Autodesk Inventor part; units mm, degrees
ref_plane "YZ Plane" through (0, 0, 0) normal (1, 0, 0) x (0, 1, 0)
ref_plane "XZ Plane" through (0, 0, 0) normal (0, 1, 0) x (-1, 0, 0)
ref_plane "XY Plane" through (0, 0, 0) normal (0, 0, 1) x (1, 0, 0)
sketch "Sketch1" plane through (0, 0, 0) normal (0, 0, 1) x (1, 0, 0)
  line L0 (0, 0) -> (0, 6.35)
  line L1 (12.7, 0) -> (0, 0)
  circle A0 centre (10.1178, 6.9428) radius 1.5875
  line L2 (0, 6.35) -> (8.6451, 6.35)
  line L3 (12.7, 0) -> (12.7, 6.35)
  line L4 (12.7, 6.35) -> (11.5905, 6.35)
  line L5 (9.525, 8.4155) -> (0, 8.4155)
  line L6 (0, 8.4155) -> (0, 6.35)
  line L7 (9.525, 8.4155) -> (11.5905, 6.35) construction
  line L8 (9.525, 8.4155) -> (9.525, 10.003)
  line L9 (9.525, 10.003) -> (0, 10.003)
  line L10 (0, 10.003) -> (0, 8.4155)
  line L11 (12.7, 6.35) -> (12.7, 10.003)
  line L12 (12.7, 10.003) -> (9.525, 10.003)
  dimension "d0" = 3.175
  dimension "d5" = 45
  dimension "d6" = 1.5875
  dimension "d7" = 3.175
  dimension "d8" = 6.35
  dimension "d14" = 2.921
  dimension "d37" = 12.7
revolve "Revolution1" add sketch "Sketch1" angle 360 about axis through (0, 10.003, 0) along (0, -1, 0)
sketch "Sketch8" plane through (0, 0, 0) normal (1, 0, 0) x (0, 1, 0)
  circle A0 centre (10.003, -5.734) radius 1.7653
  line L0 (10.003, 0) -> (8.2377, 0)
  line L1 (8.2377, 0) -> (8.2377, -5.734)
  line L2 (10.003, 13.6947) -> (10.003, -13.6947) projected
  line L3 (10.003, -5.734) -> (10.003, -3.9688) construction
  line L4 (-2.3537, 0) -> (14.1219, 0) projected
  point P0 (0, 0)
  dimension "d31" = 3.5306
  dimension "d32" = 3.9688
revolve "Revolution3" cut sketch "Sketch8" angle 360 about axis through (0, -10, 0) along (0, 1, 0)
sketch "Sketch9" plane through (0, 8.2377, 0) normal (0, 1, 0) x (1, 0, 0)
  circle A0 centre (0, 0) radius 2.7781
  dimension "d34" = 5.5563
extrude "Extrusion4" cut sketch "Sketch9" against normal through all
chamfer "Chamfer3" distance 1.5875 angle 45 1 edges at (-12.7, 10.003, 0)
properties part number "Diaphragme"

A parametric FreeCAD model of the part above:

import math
import FreeCAD as App
import Part
import Sketcher
Q = App.Units.Quantity


def edges_at(feature, points):
    """Names of the edges that pass closest to the given points."""
    edges = feature.Shape.Edges
    near = lambda p: min(range(len(edges)), key=lambda i: edges[i].distToShape(Part.Vertex(*p))[0])
    return sorted({f"Edge{near(p) + 1}" for p in points})


def add_polygon(sketch, points):
    """Adds a closed chain of lines whose ends are joined by coincident constraints."""
    first, n = sketch.GeometryCount, len(points)
    for a, b in zip(points, points[1:] + points[:1]):
        sketch.addGeometry(Part.LineSegment(App.Vector(*a, 0), App.Vector(*b, 0)), False)
    for i in range(n):
        sketch.addConstraint(Sketcher.Constraint("Coincident", first + i, 2, first + (i + 1) % n, 1))

doc = App.newDocument("Part")
body = doc.addObject("PartDesign::Body", "Body")

sketch1 = body.newObject("Sketcher::SketchObject", "Sketch")
sketch1.AttachmentSupport = (doc.getObject("XY_Plane"), [""])
sketch1.MapMode = "FlatFace"
add_polygon(sketch1, [(0, 0), (13, 0), (13, 10), (0, 10)])
sketch1.addConstraint([
    Sketcher.Constraint("Horizontal", 0),
    Sketcher.Constraint("Vertical", 1),
    Sketcher.Constraint("Horizontal", 2),
    Sketcher.Constraint("Vertical", 3),
    Sketcher.Constraint("Coincident", 3, 2, -1, 1),
    Sketcher.Constraint("DistanceX", 0, 1, 0, 2, Q("0.5 in")),
    Sketcher.Constraint("DistanceY", 1, 1, 1, 2, 10.003),
])
revolution = body.newObject("PartDesign::Revolution", "Revolution")
revolution.Profile = sketch1
revolution.ReferenceAxis = (sketch1, ["V_Axis"])
revolution.Angle = 360

sketch2 = body.newObject("Sketcher::SketchObject", "Sketch001")
sketch2.AttachmentSupport = (doc.getObject("YZ_Plane"), [""])
sketch2.MapMode = "FlatFace"
sketch2.addGeometry([
    Part.LineSegment(App.Vector(10, -4, 0), App.Vector(10, 0, 0)),
    Part.LineSegment(App.Vector(10, 0, 0), App.Vector(8.2, 0, 0)),
    Part.LineSegment(App.Vector(8.2, 0, 0), App.Vector(8.2, -5.7, 0)),
    Part.ArcOfCircle(Part.Circle(App.Vector(10, -5.7, 0), App.Vector(0, 0, 1), 1.8), math.radians(180), math.radians(450)),
], False)
sketch2.addConstraint([
    Sketcher.Constraint("Coincident", 0, 2, 1, 1),
    Sketcher.Constraint("Coincident", 1, 2, 2, 1),
    Sketcher.Constraint("Tangent", 2, 2, 3, 1),
    Sketcher.Constraint("Coincident", 3, 2, 0, 1),
    Sketcher.Constraint("Vertical", 0),
    Sketcher.Constraint("Horizontal", 1),
    Sketcher.Constraint("Vertical", 2),
    Sketcher.Constraint("PointOnObject", 0, 2, -1),
    Sketcher.Constraint("Vertical", 3, 3, 0, 2),
    Sketcher.Constraint("Radius", 3, Q("0.0695 in")),
    Sketcher.Constraint("DistanceY", 0, 1, 0, 2, Q("0.156248 in")),
    Sketcher.Constraint("DistanceX", -1, 1, 3, 3, 10.003),
])
groove = body.newObject("PartDesign::Groove", "Groove")
groove.Profile = sketch2
groove.ReferenceAxis = (sketch2, ["H_Axis"])
groove.Angle = 360

sketch3 = body.newObject("Sketcher::SketchObject", "Sketch002")
sketch3.AttachmentSupport = (doc.getObject("XZ_Plane"), [""])
sketch3.MapMode = "FlatFace"
sketch3.AttachmentOffset = App.Placement(App.Vector(0, 0, -8.2377), App.Rotation())
sketch3.addGeometry(Part.Circle(App.Vector(0, 0, 0), App.Vector(0, 0, 1), 2.8), False)
sketch3.addConstraint([
    Sketcher.Constraint("Coincident", 0, 3, -1, 1),
    Sketcher.Constraint("Diameter", 0, Q("0.218748 in")),
])
pocket1 = body.newObject("PartDesign::Pocket", "Pocket")
pocket1.Profile = sketch3
pocket1.Type = "ThroughAll"
pocket1.Reversed = True
doc.recompute()

chamfer = body.newObject("PartDesign::Chamfer", "Chamfer")
chamfer.Base = (pocket1, edges_at(pocket1, [(-12.7, 10.003, 0)]))
chamfer.Size = Q("0.0625 in")

doc.recompute()
